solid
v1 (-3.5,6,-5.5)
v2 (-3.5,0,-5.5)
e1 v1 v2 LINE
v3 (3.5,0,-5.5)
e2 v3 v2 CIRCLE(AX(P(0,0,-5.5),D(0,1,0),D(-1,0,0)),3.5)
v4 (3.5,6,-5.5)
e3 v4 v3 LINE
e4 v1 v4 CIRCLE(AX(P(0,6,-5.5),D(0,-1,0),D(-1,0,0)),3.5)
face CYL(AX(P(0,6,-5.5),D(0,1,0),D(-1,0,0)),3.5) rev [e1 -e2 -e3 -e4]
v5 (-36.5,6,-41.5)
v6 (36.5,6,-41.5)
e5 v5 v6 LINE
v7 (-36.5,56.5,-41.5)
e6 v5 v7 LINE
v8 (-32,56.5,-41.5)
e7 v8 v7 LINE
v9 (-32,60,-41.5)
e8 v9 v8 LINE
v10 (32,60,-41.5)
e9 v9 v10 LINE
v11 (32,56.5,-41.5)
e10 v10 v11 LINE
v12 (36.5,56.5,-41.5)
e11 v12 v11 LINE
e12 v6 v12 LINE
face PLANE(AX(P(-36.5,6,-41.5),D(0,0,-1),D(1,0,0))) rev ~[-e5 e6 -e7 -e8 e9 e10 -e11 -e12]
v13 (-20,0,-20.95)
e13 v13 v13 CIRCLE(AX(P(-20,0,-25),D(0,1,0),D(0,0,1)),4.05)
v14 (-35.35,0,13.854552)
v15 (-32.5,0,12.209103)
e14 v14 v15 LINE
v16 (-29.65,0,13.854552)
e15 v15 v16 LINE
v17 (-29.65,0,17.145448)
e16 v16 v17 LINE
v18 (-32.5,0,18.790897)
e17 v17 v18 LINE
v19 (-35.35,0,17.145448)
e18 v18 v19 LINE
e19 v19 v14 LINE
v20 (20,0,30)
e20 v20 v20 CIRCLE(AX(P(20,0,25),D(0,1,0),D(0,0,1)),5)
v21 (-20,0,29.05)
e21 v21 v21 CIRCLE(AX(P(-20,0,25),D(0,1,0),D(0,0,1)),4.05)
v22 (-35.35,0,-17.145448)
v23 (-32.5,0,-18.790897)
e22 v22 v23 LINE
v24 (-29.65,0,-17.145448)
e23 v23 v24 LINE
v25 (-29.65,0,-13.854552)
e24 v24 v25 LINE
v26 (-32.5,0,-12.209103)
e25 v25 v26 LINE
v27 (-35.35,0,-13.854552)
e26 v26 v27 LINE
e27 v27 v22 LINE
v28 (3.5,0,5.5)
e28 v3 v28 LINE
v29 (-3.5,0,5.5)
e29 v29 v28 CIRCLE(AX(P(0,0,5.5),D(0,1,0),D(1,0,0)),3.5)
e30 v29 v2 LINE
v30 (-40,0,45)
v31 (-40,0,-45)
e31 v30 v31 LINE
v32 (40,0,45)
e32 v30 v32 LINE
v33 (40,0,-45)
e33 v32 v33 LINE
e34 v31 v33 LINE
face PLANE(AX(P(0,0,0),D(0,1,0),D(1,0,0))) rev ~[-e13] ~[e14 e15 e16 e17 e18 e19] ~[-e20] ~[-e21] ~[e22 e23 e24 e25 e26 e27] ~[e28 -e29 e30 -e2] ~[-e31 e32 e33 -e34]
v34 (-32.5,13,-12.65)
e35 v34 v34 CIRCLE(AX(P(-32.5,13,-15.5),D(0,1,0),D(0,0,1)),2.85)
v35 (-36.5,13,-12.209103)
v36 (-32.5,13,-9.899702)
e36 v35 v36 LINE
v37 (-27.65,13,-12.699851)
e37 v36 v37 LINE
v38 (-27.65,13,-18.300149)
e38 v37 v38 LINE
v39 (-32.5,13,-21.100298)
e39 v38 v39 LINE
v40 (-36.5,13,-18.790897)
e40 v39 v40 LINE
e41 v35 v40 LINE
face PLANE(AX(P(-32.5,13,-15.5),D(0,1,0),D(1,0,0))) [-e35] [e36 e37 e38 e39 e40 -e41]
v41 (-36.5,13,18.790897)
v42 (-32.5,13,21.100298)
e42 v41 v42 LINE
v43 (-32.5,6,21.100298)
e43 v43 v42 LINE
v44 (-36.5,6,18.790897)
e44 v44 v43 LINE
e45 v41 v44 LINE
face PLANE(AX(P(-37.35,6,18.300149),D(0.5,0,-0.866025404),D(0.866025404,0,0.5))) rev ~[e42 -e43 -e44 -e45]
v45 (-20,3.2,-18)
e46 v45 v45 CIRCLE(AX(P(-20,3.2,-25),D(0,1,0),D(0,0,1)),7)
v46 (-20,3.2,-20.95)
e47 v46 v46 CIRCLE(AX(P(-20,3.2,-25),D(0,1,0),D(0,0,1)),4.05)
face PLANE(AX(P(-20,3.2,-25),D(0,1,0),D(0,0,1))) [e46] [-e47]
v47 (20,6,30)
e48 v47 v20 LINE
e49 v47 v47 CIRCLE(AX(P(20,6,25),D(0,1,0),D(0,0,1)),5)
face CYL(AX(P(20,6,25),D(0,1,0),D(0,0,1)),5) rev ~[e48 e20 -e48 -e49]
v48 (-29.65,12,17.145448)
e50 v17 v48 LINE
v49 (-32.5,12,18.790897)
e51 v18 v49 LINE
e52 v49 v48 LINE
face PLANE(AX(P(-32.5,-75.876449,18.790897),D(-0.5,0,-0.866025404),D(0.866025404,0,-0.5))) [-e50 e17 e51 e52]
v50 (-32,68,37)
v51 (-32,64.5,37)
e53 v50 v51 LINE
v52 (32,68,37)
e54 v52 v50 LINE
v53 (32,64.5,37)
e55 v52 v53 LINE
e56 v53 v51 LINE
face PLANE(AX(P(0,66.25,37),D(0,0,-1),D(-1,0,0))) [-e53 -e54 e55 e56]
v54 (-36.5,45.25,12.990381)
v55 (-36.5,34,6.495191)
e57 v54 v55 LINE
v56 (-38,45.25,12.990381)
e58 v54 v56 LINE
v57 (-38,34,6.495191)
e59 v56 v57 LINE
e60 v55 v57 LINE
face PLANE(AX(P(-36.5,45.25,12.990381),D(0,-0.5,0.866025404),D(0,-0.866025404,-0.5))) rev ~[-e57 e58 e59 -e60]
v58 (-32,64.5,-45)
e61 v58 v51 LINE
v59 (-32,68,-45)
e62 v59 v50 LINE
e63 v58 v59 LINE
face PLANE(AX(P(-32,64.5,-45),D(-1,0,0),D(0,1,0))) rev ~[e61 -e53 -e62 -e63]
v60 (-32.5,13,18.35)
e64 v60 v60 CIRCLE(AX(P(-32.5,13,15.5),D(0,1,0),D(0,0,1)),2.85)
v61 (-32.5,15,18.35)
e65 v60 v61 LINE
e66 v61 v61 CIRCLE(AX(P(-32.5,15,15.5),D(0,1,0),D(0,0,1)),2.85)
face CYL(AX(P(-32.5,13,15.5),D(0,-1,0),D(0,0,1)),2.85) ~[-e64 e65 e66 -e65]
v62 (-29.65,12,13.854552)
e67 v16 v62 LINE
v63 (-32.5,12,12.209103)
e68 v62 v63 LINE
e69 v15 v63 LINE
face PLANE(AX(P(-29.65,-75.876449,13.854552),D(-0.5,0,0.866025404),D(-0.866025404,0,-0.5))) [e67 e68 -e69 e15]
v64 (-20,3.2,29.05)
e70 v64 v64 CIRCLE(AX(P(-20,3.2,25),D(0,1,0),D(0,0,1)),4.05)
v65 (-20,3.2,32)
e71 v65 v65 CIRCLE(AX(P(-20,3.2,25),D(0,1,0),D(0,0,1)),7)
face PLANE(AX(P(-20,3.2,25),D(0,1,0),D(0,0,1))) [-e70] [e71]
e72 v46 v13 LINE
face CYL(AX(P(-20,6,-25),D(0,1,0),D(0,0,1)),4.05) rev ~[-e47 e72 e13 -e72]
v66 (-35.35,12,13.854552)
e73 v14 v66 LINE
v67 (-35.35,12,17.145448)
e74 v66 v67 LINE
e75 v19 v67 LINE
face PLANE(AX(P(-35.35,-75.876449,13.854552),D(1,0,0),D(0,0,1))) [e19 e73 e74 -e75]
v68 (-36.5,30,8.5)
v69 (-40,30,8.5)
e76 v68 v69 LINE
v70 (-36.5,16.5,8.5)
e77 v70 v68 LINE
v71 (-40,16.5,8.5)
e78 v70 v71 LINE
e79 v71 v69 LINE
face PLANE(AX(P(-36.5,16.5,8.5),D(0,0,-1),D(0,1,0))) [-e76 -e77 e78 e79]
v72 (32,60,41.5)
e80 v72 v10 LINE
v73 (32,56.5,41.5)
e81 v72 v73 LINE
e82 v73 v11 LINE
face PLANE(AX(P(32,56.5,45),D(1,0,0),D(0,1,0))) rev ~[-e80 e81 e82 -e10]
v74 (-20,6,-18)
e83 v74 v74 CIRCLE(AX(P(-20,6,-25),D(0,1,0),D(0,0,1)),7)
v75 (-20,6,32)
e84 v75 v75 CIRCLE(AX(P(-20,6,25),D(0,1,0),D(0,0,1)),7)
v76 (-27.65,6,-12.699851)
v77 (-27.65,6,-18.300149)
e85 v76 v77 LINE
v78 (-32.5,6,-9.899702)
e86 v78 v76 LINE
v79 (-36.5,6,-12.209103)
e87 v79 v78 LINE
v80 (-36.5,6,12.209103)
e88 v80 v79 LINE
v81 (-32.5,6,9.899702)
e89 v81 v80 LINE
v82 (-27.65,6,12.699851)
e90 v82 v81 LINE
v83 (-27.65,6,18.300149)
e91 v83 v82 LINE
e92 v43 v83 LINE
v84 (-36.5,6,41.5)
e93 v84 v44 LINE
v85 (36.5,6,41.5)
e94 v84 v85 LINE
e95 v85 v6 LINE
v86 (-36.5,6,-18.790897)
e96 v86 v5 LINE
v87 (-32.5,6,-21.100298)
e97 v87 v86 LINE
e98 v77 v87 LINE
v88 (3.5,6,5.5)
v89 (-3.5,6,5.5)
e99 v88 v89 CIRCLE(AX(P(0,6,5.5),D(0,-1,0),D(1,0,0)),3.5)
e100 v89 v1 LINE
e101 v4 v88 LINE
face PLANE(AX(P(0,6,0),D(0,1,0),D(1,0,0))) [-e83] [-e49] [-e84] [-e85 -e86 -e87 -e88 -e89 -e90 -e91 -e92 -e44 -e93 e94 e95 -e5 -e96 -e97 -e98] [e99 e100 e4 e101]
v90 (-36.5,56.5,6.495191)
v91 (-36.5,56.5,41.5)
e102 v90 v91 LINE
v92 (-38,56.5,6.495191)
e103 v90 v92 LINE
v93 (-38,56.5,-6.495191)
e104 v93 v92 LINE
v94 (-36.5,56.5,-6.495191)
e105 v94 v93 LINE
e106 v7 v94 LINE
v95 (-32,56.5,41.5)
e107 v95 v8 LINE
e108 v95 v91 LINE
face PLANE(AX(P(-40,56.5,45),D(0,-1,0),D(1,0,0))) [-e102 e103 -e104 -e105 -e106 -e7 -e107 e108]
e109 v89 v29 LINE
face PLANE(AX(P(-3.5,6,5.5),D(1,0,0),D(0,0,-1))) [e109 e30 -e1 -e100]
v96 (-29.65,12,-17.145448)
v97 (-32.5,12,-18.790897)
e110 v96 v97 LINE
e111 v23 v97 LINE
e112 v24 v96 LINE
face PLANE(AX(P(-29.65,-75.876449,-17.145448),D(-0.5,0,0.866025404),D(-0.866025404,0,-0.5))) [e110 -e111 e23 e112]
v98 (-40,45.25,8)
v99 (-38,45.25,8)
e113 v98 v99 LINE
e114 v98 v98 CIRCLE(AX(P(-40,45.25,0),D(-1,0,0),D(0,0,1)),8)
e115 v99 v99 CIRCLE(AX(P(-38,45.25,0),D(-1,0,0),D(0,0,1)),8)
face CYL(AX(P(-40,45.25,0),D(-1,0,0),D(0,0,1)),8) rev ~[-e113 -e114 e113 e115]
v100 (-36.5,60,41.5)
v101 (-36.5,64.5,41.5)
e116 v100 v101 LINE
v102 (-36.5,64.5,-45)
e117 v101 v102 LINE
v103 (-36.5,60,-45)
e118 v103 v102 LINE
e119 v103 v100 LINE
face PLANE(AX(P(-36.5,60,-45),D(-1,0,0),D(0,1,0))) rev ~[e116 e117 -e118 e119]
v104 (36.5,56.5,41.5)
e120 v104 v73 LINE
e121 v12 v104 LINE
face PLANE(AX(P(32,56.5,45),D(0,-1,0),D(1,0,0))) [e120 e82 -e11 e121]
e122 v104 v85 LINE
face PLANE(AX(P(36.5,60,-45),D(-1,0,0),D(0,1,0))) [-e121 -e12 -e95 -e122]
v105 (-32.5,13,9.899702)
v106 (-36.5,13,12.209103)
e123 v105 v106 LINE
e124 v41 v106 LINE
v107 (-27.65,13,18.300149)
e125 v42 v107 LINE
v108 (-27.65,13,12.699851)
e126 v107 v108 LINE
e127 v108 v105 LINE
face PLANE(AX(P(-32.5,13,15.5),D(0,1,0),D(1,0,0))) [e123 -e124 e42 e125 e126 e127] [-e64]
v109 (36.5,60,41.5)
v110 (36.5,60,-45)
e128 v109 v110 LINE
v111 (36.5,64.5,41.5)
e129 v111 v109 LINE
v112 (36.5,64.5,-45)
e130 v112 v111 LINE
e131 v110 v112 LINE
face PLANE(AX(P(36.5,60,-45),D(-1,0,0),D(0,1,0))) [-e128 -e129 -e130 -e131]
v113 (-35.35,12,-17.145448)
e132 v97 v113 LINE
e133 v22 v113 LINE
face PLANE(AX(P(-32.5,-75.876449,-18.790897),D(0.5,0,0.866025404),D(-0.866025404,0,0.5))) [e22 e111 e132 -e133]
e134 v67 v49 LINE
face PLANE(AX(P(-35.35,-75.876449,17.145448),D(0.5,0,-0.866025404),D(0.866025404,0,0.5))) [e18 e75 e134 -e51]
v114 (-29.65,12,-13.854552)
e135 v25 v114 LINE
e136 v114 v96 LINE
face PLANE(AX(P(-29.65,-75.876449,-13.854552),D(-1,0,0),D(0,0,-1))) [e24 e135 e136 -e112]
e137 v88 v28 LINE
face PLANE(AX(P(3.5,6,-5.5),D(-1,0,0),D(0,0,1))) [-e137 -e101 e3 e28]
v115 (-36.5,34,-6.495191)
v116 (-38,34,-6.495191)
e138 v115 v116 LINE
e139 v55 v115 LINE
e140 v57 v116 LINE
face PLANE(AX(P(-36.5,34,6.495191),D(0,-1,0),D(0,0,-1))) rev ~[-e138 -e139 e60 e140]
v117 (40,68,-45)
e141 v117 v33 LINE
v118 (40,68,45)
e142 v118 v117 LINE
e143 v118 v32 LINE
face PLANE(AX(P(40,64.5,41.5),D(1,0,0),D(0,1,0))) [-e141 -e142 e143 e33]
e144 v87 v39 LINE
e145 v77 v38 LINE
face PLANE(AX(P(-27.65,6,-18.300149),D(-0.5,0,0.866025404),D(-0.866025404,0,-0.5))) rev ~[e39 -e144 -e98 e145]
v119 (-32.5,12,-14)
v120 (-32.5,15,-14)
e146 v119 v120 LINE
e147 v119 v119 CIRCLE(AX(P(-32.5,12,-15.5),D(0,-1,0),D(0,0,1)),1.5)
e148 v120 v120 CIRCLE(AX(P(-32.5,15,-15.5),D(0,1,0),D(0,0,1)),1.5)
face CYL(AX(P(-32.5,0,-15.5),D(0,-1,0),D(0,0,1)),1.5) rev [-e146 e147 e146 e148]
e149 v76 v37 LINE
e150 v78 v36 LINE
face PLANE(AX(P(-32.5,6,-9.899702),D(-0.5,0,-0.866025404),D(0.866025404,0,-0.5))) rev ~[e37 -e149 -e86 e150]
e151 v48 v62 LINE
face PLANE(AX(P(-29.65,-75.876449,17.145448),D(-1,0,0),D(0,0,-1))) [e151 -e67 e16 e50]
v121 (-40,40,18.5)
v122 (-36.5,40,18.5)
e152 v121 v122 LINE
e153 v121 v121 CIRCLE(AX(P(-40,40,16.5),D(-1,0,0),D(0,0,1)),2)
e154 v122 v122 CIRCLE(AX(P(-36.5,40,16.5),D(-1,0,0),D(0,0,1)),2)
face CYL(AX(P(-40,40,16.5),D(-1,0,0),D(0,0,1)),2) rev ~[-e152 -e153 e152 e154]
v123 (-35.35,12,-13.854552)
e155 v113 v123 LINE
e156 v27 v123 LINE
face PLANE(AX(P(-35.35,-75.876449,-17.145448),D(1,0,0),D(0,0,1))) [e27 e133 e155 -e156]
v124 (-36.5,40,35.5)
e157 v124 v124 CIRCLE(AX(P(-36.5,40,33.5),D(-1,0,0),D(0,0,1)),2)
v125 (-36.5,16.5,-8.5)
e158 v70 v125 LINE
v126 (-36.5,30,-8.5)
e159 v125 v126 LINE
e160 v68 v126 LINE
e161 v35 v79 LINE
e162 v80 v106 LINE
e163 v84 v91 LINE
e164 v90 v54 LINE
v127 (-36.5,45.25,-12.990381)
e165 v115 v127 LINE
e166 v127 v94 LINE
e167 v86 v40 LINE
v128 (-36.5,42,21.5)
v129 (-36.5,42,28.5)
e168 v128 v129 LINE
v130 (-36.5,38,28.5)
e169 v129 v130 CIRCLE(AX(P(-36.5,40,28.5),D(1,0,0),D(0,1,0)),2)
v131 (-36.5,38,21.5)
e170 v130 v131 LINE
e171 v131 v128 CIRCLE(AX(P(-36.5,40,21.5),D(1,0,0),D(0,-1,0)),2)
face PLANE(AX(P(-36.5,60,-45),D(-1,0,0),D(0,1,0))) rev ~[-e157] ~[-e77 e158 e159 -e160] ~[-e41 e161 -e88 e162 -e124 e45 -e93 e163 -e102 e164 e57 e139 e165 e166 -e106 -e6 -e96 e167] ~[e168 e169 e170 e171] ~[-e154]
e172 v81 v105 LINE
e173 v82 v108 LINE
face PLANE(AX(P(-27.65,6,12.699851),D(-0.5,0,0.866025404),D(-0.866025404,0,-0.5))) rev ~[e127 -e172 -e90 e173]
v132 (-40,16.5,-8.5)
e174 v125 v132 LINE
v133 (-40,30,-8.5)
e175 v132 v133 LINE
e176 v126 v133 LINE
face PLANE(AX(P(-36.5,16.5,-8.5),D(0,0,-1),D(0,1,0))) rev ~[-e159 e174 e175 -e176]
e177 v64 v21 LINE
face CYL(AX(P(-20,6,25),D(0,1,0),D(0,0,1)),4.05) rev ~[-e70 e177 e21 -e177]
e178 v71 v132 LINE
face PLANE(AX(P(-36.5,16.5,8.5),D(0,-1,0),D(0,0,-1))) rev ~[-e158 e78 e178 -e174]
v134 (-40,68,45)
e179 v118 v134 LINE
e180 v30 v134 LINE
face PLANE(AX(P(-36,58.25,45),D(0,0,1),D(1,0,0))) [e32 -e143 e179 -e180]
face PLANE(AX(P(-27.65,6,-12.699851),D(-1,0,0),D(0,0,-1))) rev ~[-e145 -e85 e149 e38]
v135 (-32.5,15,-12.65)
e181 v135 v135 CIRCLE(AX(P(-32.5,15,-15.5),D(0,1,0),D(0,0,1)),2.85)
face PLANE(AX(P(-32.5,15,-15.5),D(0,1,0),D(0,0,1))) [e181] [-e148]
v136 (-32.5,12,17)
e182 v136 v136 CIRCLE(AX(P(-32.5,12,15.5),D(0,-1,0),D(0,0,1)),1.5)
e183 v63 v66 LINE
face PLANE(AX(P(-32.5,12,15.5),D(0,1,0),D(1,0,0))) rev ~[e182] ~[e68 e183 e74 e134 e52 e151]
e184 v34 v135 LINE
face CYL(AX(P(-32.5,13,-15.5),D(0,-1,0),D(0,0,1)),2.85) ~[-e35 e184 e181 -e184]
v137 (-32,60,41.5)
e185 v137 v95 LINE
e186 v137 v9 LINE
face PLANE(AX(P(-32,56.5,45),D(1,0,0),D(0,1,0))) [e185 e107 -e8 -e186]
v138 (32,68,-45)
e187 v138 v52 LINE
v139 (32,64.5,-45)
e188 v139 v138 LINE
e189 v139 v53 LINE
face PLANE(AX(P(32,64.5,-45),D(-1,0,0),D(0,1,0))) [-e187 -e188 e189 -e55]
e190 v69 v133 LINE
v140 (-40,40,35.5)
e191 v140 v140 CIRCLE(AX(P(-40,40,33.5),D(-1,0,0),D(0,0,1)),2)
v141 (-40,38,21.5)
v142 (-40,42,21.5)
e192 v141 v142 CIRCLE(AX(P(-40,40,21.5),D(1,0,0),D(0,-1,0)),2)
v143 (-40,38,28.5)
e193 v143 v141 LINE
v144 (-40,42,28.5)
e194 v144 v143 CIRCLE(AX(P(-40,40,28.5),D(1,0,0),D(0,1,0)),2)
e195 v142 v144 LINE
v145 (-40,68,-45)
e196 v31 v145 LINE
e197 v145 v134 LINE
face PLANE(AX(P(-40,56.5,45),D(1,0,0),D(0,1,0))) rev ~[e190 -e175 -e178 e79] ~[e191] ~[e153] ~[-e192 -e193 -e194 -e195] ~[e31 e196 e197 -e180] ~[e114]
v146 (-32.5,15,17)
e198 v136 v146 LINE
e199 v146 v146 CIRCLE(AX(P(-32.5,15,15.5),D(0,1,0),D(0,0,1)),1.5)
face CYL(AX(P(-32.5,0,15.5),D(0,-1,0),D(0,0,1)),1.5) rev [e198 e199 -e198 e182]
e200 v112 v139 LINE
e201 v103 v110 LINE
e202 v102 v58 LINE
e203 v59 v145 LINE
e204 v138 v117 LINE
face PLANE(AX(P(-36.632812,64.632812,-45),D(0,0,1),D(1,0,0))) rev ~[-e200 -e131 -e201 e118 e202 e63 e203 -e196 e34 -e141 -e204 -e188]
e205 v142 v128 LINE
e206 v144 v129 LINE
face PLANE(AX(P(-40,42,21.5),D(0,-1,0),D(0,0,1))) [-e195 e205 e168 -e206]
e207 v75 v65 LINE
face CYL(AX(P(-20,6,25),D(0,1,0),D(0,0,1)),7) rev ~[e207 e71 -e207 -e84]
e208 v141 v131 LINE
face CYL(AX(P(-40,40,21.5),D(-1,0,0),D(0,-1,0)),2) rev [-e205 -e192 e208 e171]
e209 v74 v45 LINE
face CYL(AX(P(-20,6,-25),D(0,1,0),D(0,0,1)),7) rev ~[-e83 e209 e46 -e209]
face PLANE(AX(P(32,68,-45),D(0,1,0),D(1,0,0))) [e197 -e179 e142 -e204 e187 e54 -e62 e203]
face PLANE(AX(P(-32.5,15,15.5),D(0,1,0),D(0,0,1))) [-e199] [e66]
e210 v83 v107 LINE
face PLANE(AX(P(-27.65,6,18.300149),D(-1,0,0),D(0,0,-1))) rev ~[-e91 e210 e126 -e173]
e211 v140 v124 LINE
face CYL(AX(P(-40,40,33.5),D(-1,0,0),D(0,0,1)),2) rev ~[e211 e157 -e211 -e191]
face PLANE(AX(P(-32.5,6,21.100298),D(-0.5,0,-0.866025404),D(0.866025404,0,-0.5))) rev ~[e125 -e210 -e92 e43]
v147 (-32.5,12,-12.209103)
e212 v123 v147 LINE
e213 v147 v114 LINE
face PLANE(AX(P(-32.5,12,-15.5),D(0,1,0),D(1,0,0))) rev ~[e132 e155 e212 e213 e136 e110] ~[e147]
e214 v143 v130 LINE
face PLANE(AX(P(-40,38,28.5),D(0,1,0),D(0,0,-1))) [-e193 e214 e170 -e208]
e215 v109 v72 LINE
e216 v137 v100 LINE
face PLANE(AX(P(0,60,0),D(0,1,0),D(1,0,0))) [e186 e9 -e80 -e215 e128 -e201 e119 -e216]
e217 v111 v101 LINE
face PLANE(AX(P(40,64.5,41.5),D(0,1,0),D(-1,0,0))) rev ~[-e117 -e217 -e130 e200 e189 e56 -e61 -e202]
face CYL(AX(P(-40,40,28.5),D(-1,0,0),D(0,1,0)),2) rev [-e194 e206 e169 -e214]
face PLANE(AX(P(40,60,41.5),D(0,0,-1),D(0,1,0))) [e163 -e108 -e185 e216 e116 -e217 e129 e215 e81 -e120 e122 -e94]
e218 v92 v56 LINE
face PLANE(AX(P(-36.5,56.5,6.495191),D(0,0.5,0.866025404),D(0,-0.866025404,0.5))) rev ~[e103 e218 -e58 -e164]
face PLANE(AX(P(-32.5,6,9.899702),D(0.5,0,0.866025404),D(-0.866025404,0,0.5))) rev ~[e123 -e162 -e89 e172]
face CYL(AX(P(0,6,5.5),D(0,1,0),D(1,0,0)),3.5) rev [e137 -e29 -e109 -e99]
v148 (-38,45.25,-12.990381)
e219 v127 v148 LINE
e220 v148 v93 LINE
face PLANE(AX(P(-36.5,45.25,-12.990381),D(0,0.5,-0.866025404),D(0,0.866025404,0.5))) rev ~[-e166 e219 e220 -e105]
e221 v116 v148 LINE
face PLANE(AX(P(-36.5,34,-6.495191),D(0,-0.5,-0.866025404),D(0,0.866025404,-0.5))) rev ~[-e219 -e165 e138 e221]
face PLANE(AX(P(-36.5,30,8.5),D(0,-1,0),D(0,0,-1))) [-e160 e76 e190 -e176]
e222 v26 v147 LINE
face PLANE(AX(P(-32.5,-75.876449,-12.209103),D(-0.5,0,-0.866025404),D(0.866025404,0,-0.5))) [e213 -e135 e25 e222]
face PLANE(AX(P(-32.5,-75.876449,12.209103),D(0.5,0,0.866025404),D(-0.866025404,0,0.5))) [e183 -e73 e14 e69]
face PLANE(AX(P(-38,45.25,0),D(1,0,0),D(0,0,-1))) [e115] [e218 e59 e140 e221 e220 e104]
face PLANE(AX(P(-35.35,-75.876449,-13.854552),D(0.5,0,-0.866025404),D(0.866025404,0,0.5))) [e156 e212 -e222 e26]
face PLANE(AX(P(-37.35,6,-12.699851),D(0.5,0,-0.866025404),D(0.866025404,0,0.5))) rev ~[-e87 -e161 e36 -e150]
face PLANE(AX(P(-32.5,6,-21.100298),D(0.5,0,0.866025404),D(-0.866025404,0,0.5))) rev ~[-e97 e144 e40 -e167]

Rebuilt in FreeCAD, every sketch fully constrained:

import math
import FreeCAD as App
import Part
import Sketcher
from FreeCAD import Vector
Q = App.Units.Quantity


def add_polygon(sketch, points):
    """Adds a closed chain of lines whose ends are joined by coincident constraints."""
    first, n = sketch.GeometryCount, len(points)
    for a, b in zip(points, points[1:] + points[:1]):
        sketch.addGeometry(Part.LineSegment(App.Vector(*a, 0), App.Vector(*b, 0)), False)
    for i in range(n):
        sketch.addConstraint(Sketcher.Constraint("Coincident", first + i, 2, first + (i + 1) % n, 1))

doc = App.newDocument("Part")
body = doc.addObject("PartDesign::Body", "Body")

sketch1 = body.newObject("Sketcher::SketchObject", "Sketch")
sketch1.AttachmentSupport = (doc.getObject("XZ_Plane"), [""])
sketch1.MapMode = "FlatFace"
add_polygon(sketch1, [(-40, -45), (-40, 45), (40, 45), (40, -45)])
sketch1.addConstraint(Sketcher.Constraint("Vertical", 0))
sketch1.addConstraint(Sketcher.Constraint("Horizontal", 1))
sketch1.addConstraint(Sketcher.Constraint("Vertical", 2))
sketch1.addConstraint(Sketcher.Constraint("Horizontal", 3))
sketch1.addConstraint(Sketcher.Constraint("Symmetric", 0, 2, 2, 2, -1, 1))
sketch1.addConstraint(Sketcher.Constraint("DistanceX", 1, 1, 1, 2, Q("80 mm")))
sketch1.addConstraint(Sketcher.Constraint("DistanceY", 0, 1, 0, 2, Q("90 mm")))
pad1 = body.newObject("PartDesign::Pad", "Pad")
pad1.Profile = sketch1
pad1.Length = 6
pad1.Reversed = True

sketch2 = body.newObject("Sketcher::SketchObject", "Sketch001")
sketch2.AttachmentSupport = (doc.getObject("XZ_Plane"), [""])
sketch2.MapMode = "FlatFace"
sketch2.AttachmentOffset = App.Placement(Vector(0, 0, -6), App.Rotation())
add_polygon(sketch2, [(-40, -45), (-40, 45), (40, 45), (40, -45)])
add_polygon(sketch2, [(36, 42), (-36, 42), (-36, -42), (36, -42)])
sketch2.addConstraint(Sketcher.Constraint("Vertical", 0))
sketch2.addConstraint(Sketcher.Constraint("Horizontal", 1))
sketch2.addConstraint(Sketcher.Constraint("Vertical", 2))
sketch2.addConstraint(Sketcher.Constraint("Horizontal", 3))
sketch2.addConstraint(Sketcher.Constraint("Horizontal", 4))
sketch2.addConstraint(Sketcher.Constraint("Vertical", 5))
sketch2.addConstraint(Sketcher.Constraint("Horizontal", 6))
sketch2.addConstraint(Sketcher.Constraint("Vertical", 7))
sketch2.addConstraint(Sketcher.Constraint("Symmetric", 0, 2, 2, 2, -1, 1))
sketch2.addConstraint(Sketcher.Constraint("Symmetric", 4, 2, 6, 2, -1, 1))
sketch2.addConstraint(Sketcher.Constraint("DistanceX", 1, 1, 1, 2, Q("80 mm")))
sketch2.addConstraint(Sketcher.Constraint("DistanceX", 4, 2, 4, 1, Q("73 mm")))
sketch2.addConstraint(Sketcher.Constraint("DistanceY", 0, 1, 0, 2, Q("90 mm")))
sketch2.addConstraint(Sketcher.Constraint("DistanceY", 5, 2, 5, 1, Q("83 mm")))
pad2 = body.newObject("PartDesign::Pad", "Pad001")
pad2.Profile = sketch2
pad2.Length = 54
pad2.Reversed = True

sketch3 = body.newObject("Sketcher::SketchObject", "Sketch002")
sketch3.AttachmentSupport = (doc.getObject("XZ_Plane"), [""])
sketch3.MapMode = "FlatFace"
sketch3.AttachmentOffset = App.Placement(Vector(0, 0, -6), App.Rotation())
sketch3.addGeometry(Part.Circle(Vector(-20, -25, 0), Vector(0, 0, 1), 4), False)
sketch3.addGeometry(Part.Circle(Vector(-20, 25, 0), Vector(0, 0, 1), 4), False)
sketch3.addGeometry(Part.Circle(Vector(20, 25, 0), Vector(0, 0, 1), 5), False)
sketch3.addConstraint(Sketcher.Constraint("Equal", 0, 1))
sketch3.addConstraint(Sketcher.Constraint("Symmetric", 0, 3, 2, 3, -1, 1))
sketch3.addConstraint(Sketcher.Constraint("Symmetric", 1, 3, 2, 3, -2))
sketch3.addConstraint(Sketcher.Constraint("Diameter", 2, Q("10 mm")))
sketch3.addConstraint(Sketcher.Constraint("Diameter", 0, Q("8.1 mm")))
sketch3.addConstraint(Sketcher.Constraint("DistanceX", 0, 3, -1, 1, Q("20 mm")))
sketch3.addConstraint(Sketcher.Constraint("DistanceY", 0, 3, -1, 1, Q("25 mm")))
pocket1 = body.newObject("PartDesign::Pocket", "Pocket")
pocket1.Profile = sketch3
pocket1.Length = 40
pocket1.Reversed = True

sketch4 = body.newObject("Sketcher::SketchObject", "Sketch003")
sketch4.AttachmentSupport = (doc.getObject("XZ_Plane"), [""])
sketch4.MapMode = "FlatFace"
sketch4.AttachmentOffset = App.Placement(Vector(0, 0, -6), App.Rotation())
sketch4.addGeometry(Part.Circle(Vector(-20, -25, 0), Vector(0, 0, 1), 7), False)
sketch4.addGeometry(Part.Circle(Vector(-20, 25, 0), Vector(0, 0, 1), 7), False)
sketch4.addConstraint(Sketcher.Constraint("Equal", 0, 1))
sketch4.addConstraint(Sketcher.Constraint("Symmetric", 0, 3, 1, 3, -1))
sketch4.addConstraint(Sketcher.Constraint("Diameter", 0, Q("14 mm")))
sketch4.addConstraint(Sketcher.Constraint("DistanceX", 0, 3, -1, 1, Q("20 mm")))
sketch4.addConstraint(Sketcher.Constraint("DistanceY", 0, 3, -1, 1, Q("25 mm")))
pocket2 = body.newObject("PartDesign::Pocket", "Pocket001")
pocket2.Profile = sketch4
pocket2.Length = 2.8
pocket2.Reversed = True

sketch5 = body.newObject("Sketcher::SketchObject", "Sketch004")
sketch5.AttachmentSupport = (doc.getObject("XZ_Plane"), [""])
sketch5.MapMode = "FlatFace"
sketch5.AttachmentOffset = App.Placement(Vector(0, 0, -6), App.Rotation())
add_polygon(sketch5, [(-32, -21), (-37, -18), (-37, -13), (-32, -10), (-28, -13), (-28, -18)])
add_polygon(sketch5, [(-28, 13), (-32, 10), (-37, 13), (-37, 18), (-32, 21), (-28, 18)])
sketch5.addConstraint(Sketcher.Constraint("Vertical", 1))
sketch5.addConstraint(Sketcher.Constraint("Vertical", 4))
sketch5.addConstraint(Sketcher.Constraint("Vertical", 8))
sketch5.addConstraint(Sketcher.Constraint("Vertical", 11))
sketch5.addConstraint(Sketcher.Constraint("Symmetric", 2, 2, 6, 2, -1))
sketch5.addConstraint(Sketcher.Constraint("Symmetric", 1, 2, 7, 2, -1))
sketch5.addConstraint(Sketcher.Constraint("Symmetric", 5, 2, 9, 2, -1))
sketch5.addConstraint(Sketcher.Constraint("Symmetric", 4, 2, 10, 2, -1))
sketch5.addConstraint(Sketcher.Constraint("Parallel", 0, 3))
sketch5.addConstraint(Sketcher.Constraint("Parallel", 2, 5))
sketch5.addConstraint(Sketcher.Constraint("Parallel", 5, 6))
sketch5.addConstraint(Sketcher.Constraint("Parallel", 3, 7))
sketch5.addConstraint(Sketcher.Constraint("Parallel", 6, 9))
sketch5.addConstraint(Sketcher.Constraint("Horizontal", 1, 2, 3, 2))
sketch5.addConstraint(Sketcher.Constraint("Horizontal", 0, 2, 4, 2))
sketch5.addConstraint(Sketcher.Constraint("Angle", 0, Q("150 deg")))
sketch5.addConstraint(Sketcher.Constraint("DistanceY", 0, 2, 7, 2, Q("31 mm")))
sketch5.addConstraint(Sketcher.Constraint("DistanceX", 2, 2, -1, 1, Q("32.5 mm")))
sketch5.addConstraint(Sketcher.Constraint("DistanceX", 1, 2, 3, 2, Q("9.7 mm")))
sketch5.addConstraint(Sketcher.Constraint("DistanceY", 1, 1, 1, 2, Q("5.600298 mm")))
pad3 = body.newObject("PartDesign::Pad", "Pad002")
pad3.Profile = sketch5
pad3.Length = 7
pad3.Reversed = True

sketch6 = body.newObject("Sketcher::SketchObject", "Sketch005")
sketch6.AttachmentSupport = (doc.getObject("XZ_Plane"), [""])
sketch6.MapMode = "FlatFace"
sketch6.AttachmentOffset = App.Placement(Vector(0, 0, -13), App.Rotation())
sketch6.addGeometry(Part.Circle(Vector(-32.5, -15.5, 0), Vector(0, 0, 1), 2.9), False)
sketch6.addGeometry(Part.Circle(Vector(-32.5, 15.5, 0), Vector(0, 0, 1), 2.9), False)
sketch6.addConstraint(Sketcher.Constraint("Equal", 0, 1))
sketch6.addConstraint(Sketcher.Constraint("Symmetric", 0, 3, 1, 3, -1))
sketch6.addConstraint(Sketcher.Constraint("Diameter", 0, Q("5.7 mm")))
sketch6.addConstraint(Sketcher.Constraint("DistanceY", 0, 3, 1, 3, Q("31 mm")))
sketch6.addConstraint(Sketcher.Constraint("DistanceX", 0, 3, -1, 1, Q("32.5 mm")))
pad4 = body.newObject("PartDesign::Pad", "Pad003")
pad4.Profile = sketch6
pad4.Length = 2
pad4.Reversed = True

sketch7 = body.newObject("Sketcher::SketchObject", "Sketch006")
sketch7.AttachmentSupport = (doc.getObject("XZ_Plane"), [""])
sketch7.MapMode = "FlatFace"
sketch7.AttachmentOffset = App.Placement(Vector(0, 0, -6), App.Rotation())
sketch7.addGeometry(Part.Circle(Vector(-32.5, -15.5, 0), Vector(0, 0, 1), 1.5), False)
sketch7.addGeometry(Part.Circle(Vector(-32.5, 15.5, 0), Vector(0, 0, 1), 1.5), False)
sketch7.addConstraint(Sketcher.Constraint("Equal", 0, 1))
sketch7.addConstraint(Sketcher.Constraint("Symmetric", 0, 3, 1, 3, -1))
sketch7.addConstraint(Sketcher.Constraint("Diameter", 0, Q("3 mm")))
sketch7.addConstraint(Sketcher.Constraint("DistanceY", 0, 3, 1, 3, Q("31 mm")))
sketch7.addConstraint(Sketcher.Constraint("DistanceX", 0, 3, -1, 1, Q("32.5 mm")))
pocket3 = body.newObject("PartDesign::Pocket", "Pocket002")
pocket3.Profile = sketch7
pocket3.Type = "ThroughAll"
pocket3.Midplane = True

sketch8 = body.newObject("Sketcher::SketchObject", "Sketch007")
sketch8.AttachmentSupport = (doc.getObject("XZ_Plane"), [""])
sketch8.MapMode = "FlatFace"
sketch8.AttachmentOffset = App.Placement(Vector(0, 0, -6), App.Rotation())
add_polygon(sketch8, [(-29.6, -17.1), (-32.5, -18.8), (-35.4, -17.1), (-35.4, -13.9), (-32.5, -12.2), (-29.6, -13.9)])
add_polygon(sketch8, [(-29.6, 13.9), (-32.5, 12.2), (-35.4, 13.9), (-35.4, 17.1), (-32.5, 18.8), (-29.6, 17.1)])
sketch8.addConstraint(Sketcher.Constraint("Vertical", 2))
sketch8.addConstraint(Sketcher.Constraint("Vertical", 5))
sketch8.addConstraint(Sketcher.Constraint("Vertical", 8))
sketch8.addConstraint(Sketcher.Constraint("Vertical", 11))
sketch8.addConstraint(Sketcher.Constraint("Symmetric", 3, 2, 6, 2, -1))
sketch8.addConstraint(Sketcher.Constraint("Symmetric", 2, 2, 7, 2, -1))
sketch8.addConstraint(Sketcher.Constraint("Symmetric", 0, 2, 9, 2, -1))
sketch8.addConstraint(Sketcher.Constraint("Symmetric", 5, 2, 10, 2, -1))
sketch8.addConstraint(Sketcher.Constraint("Parallel", 0, 3))
sketch8.addConstraint(Sketcher.Constraint("Parallel", 1, 4))
sketch8.addConstraint(Sketcher.Constraint("Parallel", 3, 6))
sketch8.addConstraint(Sketcher.Constraint("Parallel", 4, 7))
sketch8.addConstraint(Sketcher.Constraint("Parallel", 6, 9))
sketch8.addConstraint(Sketcher.Constraint("Horizontal", 2, 2, 4, 2))
sketch8.addConstraint(Sketcher.Constraint("Horizontal", 1, 2, 5, 2))
sketch8.addConstraint(Sketcher.Constraint("Angle", 0, Q("-150 deg")))
sketch8.addConstraint(Sketcher.Constraint("DistanceY", 1, 2, 7, 2, Q("31 mm")))
sketch8.addConstraint(Sketcher.Constraint("DistanceX", 0, 2, -1, 1, Q("32.5 mm")))
sketch8.addConstraint(Sketcher.Constraint("DistanceX", 2, 2, 4, 2, Q("5.7 mm")))
sketch8.addConstraint(Sketcher.Constraint("DistanceY", 2, 1, 2, 2, Q("3.290897 mm")))
pocket4 = body.newObject("PartDesign::Pocket", "Pocket003")
pocket4.Profile = sketch8
pocket4.Type = "TwoLengths"
pocket4.Length = 6
pocket4.Length2 = 81.876449

sketch9 = body.newObject("Sketcher::SketchObject", "Sketch008")
sketch9.AttachmentSupport = (doc.getObject("YZ_Plane"), [""])
sketch9.MapMode = "FlatFace"
sketch9.AttachmentOffset = App.Placement(Vector(0, 0, -36.5), App.Rotation())
add_polygon(sketch9, [(30, 8), (16, 8), (16, -8), (30, -8)])
sketch9.addConstraint(Sketcher.Constraint("Horizontal", 0))
sketch9.addConstraint(Sketcher.Constraint("Vertical", 1))
sketch9.addConstraint(Sketcher.Constraint("Horizontal", 2))
sketch9.addConstraint(Sketcher.Constraint("Vertical", 3))
sketch9.addConstraint(Sketcher.Constraint("DistanceY", 1, 2, 1, 1, Q("17 mm")))
sketch9.addConstraint(Sketcher.Constraint("DistanceX", 0, 2, 0, 1, Q("13.5 mm")))
sketch9.addConstraint(Sketcher.Constraint("DistanceX", -1, 1, 2, 2, Q("30 mm")))
sketch9.addConstraint(Sketcher.Constraint("DistanceY", -1, 1, 0, 2, Q("8.5 mm")))
pocket5 = body.newObject("PartDesign::Pocket", "Pocket004")
pocket5.Profile = sketch9
pocket5.Length = 3.5

sketch10 = body.newObject("Sketcher::SketchObject", "Sketch009")
sketch10.AttachmentSupport = (doc.getObject("YZ_Plane"), [""])
sketch10.MapMode = "FlatFace"
sketch10.AttachmentOffset = App.Placement(Vector(0, 0, -40), App.Rotation())
sketch10.addGeometry(Part.Circle(Vector(45, 0, 0), Vector(0, 0, 1), 8), False)
sketch10.addConstraint(Sketcher.Constraint("PointOnObject", 0, 3, -1))
sketch10.addConstraint(Sketcher.Constraint("Diameter", 0, Q("16 mm")))
sketch10.addConstraint(Sketcher.Constraint("DistanceX", -1, 1, 0, 3, Q("45.25 mm")))
pocket6 = body.newObject("PartDesign::Pocket", "Pocket005")
pocket6.Profile = sketch10
pocket6.Length = 2
pocket6.Reversed = True

sketch11 = body.newObject("Sketcher::SketchObject", "Sketch010")
sketch11.AttachmentSupport = (doc.getObject("YZ_Plane"), [""])
sketch11.MapMode = "FlatFace"
sketch11.AttachmentOffset = App.Placement(Vector(0, 0, -36.5), App.Rotation())
add_polygon(sketch11, [(56, 6), (45, 13), (34, 6), (34, -6), (45, -13), (56, -6)])
sketch11.addConstraint(Sketcher.Constraint("Vertical", 2))
sketch11.addConstraint(Sketcher.Constraint("Vertical", 5))
sketch11.addConstraint(Sketcher.Constraint("Symmetric", 0, 2, 3, 2, -1))
sketch11.addConstraint(Sketcher.Constraint("Parallel", 0, 3))
sketch11.addConstraint(Sketcher.Constraint("Parallel", 1, 4))
sketch11.addConstraint(Sketcher.Constraint("Horizontal", 2, 2, 4, 2))
sketch11.addConstraint(Sketcher.Constraint("Horizontal", 1, 2, 5, 2))
sketch11.addConstraint(Sketcher.Constraint("Angle", 0, Q("150 deg")))
sketch11.addConstraint(Sketcher.Constraint("DistanceX", -1, 1, 1, 2, Q("34 mm")))
sketch11.addConstraint(Sketcher.Constraint("DistanceX", -1, 1, 4, 2, Q("56.5 mm")))
sketch11.addConstraint(Sketcher.Constraint("DistanceY", 2, 2, 2, 1, Q("12.990381 mm")))
pocket7 = body.newObject("PartDesign::Pocket", "Pocket006")
pocket7.Profile = sketch11
pocket7.Length = 1.5

sketch12 = body.newObject("Sketcher::SketchObject", "Sketch011")
sketch12.AttachmentSupport = (doc.getObject("XZ_Plane"), [""])
sketch12.MapMode = "FlatFace"
sketch12.AttachmentOffset = App.Placement(Vector(0, 0, -6), App.Rotation())
sketch12.addGeometry(Part.LineSegment(Vector(-3.5, -5.5, 0), Vector(-3.5, 5.5, 0)), False)
sketch12.addGeometry(Part.ArcOfCircle(Part.Circle(Vector(0, 5.5, 0), Vector(0, 0, 1), 3.5), math.radians(0), math.radians(180)), False)
sketch12.addGeometry(Part.LineSegment(Vector(3.5, 5.5, 0), Vector(3.5, -5.5, 0)), False)
sketch12.addGeometry(Part.ArcOfCircle(Part.Circle(Vector(0, -5.5, 0), Vector(0, 0, 1), 3.5), math.radians(180), math.radians(360)), False)
sketch12.addConstraint(Sketcher.Constraint("Tangent", 0, 2, 1, 2))
sketch12.addConstraint(Sketcher.Constraint("Tangent", 1, 1, 2, 1))
sketch12.addConstraint(Sketcher.Constraint("Tangent", 2, 2, 3, 2))
sketch12.addConstraint(Sketcher.Constraint("Tangent", 3, 1, 0, 1))
sketch12.addConstraint(Sketcher.Constraint("Vertical", 0))
sketch12.addConstraint(Sketcher.Constraint("Vertical", 2))
sketch12.addConstraint(Sketcher.Constraint("Symmetric", 1, 3, 3, 3, -1, 1))
sketch12.addConstraint(Sketcher.Constraint("Radius", 1, Q("3.5 mm")))
sketch12.addConstraint(Sketcher.Constraint("DistanceY", 0, 1, 0, 2, Q("11 mm")))
pocket8 = body.newObject("PartDesign::Pocket", "Pocket007")
pocket8.Profile = sketch12
pocket8.Length = 10
pocket8.Reversed = True
body2 = doc.addObject("PartDesign::Body", "Body001")

sketch13 = body2.newObject("Sketcher::SketchObject", "Sketch012")
sketch13.AttachmentSupport = (doc.getObject("XY_Plane001"), [""])
sketch13.MapMode = "FlatFace"
sketch13.AttachmentOffset = App.Placement(Vector(0, 0, -45), App.Rotation())
add_polygon(sketch13, [(40, 60), (36.5, 60), (36.5, 64.5), (32, 64.5), (32, 68), (40, 68)])
sketch13.addConstraint(Sketcher.Constraint("Horizontal", 0))
sketch13.addConstraint(Sketcher.Constraint("Vertical", 1))
sketch13.addConstraint(Sketcher.Constraint("Horizontal", 2))
sketch13.addConstraint(Sketcher.Constraint("Vertical", 3))
sketch13.addConstraint(Sketcher.Constraint("Horizontal", 4))
sketch13.addConstraint(Sketcher.Constraint("Vertical", 5))
sketch13.addConstraint(Sketcher.Constraint("Equal", 2, 1))
sketch13.addConstraint(Sketcher.Constraint("Equal", 0, 3))
sketch13.addConstraint(Sketcher.Constraint("DistanceX", 4, 1, 4, 2, Q("8 mm")))
sketch13.addConstraint(Sketcher.Constraint("DistanceX", 0, 2, 0, 1, Q("3.5 mm")))
sketch13.addConstraint(Sketcher.Constraint("DistanceY", -1, 1, 0, 2, Q("60 mm")))
sketch13.addConstraint(Sketcher.Constraint("DistanceX", -1, 1, 2, 2, Q("32 mm")))
pad5 = body2.newObject("PartDesign::Pad", "Pad004")
pad5.Profile = sketch13
pad5.Length = 90
body3 = doc.addObject("PartDesign::Body", "Body002")

sketch14 = body3.newObject("Sketcher::SketchObject", "Sketch013")
sketch14.AttachmentSupport = (doc.getObject("XY_Plane002"), [""])
sketch14.MapMode = "FlatFace"
sketch14.AttachmentOffset = App.Placement(Vector(0, 0, -45), App.Rotation())
add_polygon(sketch14, [(-36.5, 60), (-40, 60), (-40, 68), (-32, 68), (-32, 64.5), (-36.5, 64.5)])
sketch14.addConstraint(Sketcher.Constraint("Horizontal", 0))
sketch14.addConstraint(Sketcher.Constraint("Vertical", 1))
sketch14.addConstraint(Sketcher.Constraint("Horizontal", 2))
sketch14.addConstraint(Sketcher.Constraint("Vertical", 3))
sketch14.addConstraint(Sketcher.Constraint("Horizontal", 4))
sketch14.addConstraint(Sketcher.Constraint("Vertical", 5))
sketch14.addConstraint(Sketcher.Constraint("Equal", 2, 1))
sketch14.addConstraint(Sketcher.Constraint("Equal", 0, 3))
sketch14.addConstraint(Sketcher.Constraint("DistanceX", 2, 1, 2, 2, Q("8 mm")))
sketch14.addConstraint(Sketcher.Constraint("DistanceX", 0, 2, 0, 1, Q("3.5 mm")))
sketch14.addConstraint(Sketcher.Constraint("DistanceX", 0, 2, -1, 1, Q("40 mm")))
sketch14.addConstraint(Sketcher.Constraint("DistanceY", -1, 1, 0, 2, Q("60 mm")))
pad6 = body3.newObject("PartDesign::Pad", "Pad005")
pad6.Profile = sketch14
pad6.Length = 90
doc.recompute()

boolean = body.newObject("PartDesign::Boolean", "Boolean")
boolean.Type = "Fuse"
boolean.addObjects([body2])

sketch15 = body.newObject("Sketcher::SketchObject", "Sketch014")
sketch15.AttachmentSupport = (doc.getObject("YZ_Plane"), [""])
sketch15.MapMode = "FlatFace"
sketch15.AttachmentOffset = App.Placement(Vector(0, 0, 40), App.Rotation())
add_polygon(sketch15, [(68, 45), (60, 45), (60, 41.5), (68, 41.5)])
sketch15.addConstraint(Sketcher.Constraint("Horizontal", 0))
sketch15.addConstraint(Sketcher.Constraint("Vertical", 1))
sketch15.addConstraint(Sketcher.Constraint("Horizontal", 2))
sketch15.addConstraint(Sketcher.Constraint("Vertical", 3))
sketch15.addConstraint(Sketcher.Constraint("DistanceX", 0, 2, 0, 1, Q("8 mm")))
sketch15.addConstraint(Sketcher.Constraint("DistanceY", 1, 2, 1, 1, Q("3.5 mm")))
sketch15.addConstraint(Sketcher.Constraint("DistanceX", -1, 1, 0, 2, Q("60 mm")))
sketch15.addConstraint(Sketcher.Constraint("DistanceY", -1, 1, 0, 2, Q("45 mm")))
pad7 = body.newObject("PartDesign::Pad", "Pad006")
pad7.Profile = sketch15
pad7.Length = 80
pad7.Reversed = True
doc.recompute()

boolean2 = body.newObject("PartDesign::Boolean", "Boolean001")
boolean2.Type = "Fuse"
boolean2.addObjects([body3])

sketch16 = body.newObject("Sketcher::SketchObject", "Sketch015")
sketch16.AttachmentSupport = (doc.getObject("XY_Plane"), [""])
sketch16.MapMode = "FlatFace"
sketch16.AttachmentOffset = App.Placement(Vector(0, 0, 41.5), App.Rotation())
add_polygon(sketch16, [(40, 68), (40, 64.5), (-40, 64.5), (-40, 68)])
sketch16.addConstraint(Sketcher.Constraint("Vertical", 0))
sketch16.addConstraint(Sketcher.Constraint("Horizontal", 1))
sketch16.addConstraint(Sketcher.Constraint("Vertical", 2))
sketch16.addConstraint(Sketcher.Constraint("Horizontal", 3))
sketch16.addConstraint(Sketcher.Constraint("DistanceX", 1, 2, 1, 1, Q("80 mm")))
sketch16.addConstraint(Sketcher.Constraint("DistanceY", 0, 2, 0, 1, Q("3.5 mm")))
sketch16.addConstraint(Sketcher.Constraint("DistanceX", -1, 1, 0, 2, Q("40 mm")))
sketch16.addConstraint(Sketcher.Constraint("DistanceY", -1, 1, 2, 2, Q("68 mm")))
pad8 = body.newObject("PartDesign::Pad", "Pad007")
pad8.Profile = sketch16
pad8.Length = 4.5
pad8.Reversed = True

sketch17 = body.newObject("Sketcher::SketchObject", "Sketch016")
sketch17.AttachmentSupport = (doc.getObject("XY_Plane"), [""])
sketch17.MapMode = "FlatFace"
sketch17.AttachmentOffset = App.Placement(Vector(0, 0, 45), App.Rotation())
add_polygon(sketch17, [(-40, 60), (-40, 56.5), (-32, 56.5), (-32, 60)])
add_polygon(sketch17, [(32, 60), (32, 56.5), (40, 56.5), (40, 60)])
sketch17.addConstraint(Sketcher.Constraint("Vertical", 0))
sketch17.addConstraint(Sketcher.Constraint("Horizontal", 1))
sketch17.addConstraint(Sketcher.Constraint("Vertical", 2))
sketch17.addConstraint(Sketcher.Constraint("Horizontal", 3))
sketch17.addConstraint(Sketcher.Constraint("Vertical", 4))
sketch17.addConstraint(Sketcher.Constraint("Horizontal", 5))
sketch17.addConstraint(Sketcher.Constraint("Vertical", 6))
sketch17.addConstraint(Sketcher.Constraint("Horizontal", 7))
sketch17.addConstraint(Sketcher.Constraint("Symmetric", 1, 2, 4, 2, -2))
sketch17.addConstraint(Sketcher.Constraint("Symmetric", 3, 2, 6, 2, -2))
sketch17.addConstraint(Sketcher.Constraint("DistanceX", 1, 1, 1, 2, Q("8 mm")))
sketch17.addConstraint(Sketcher.Constraint("DistanceY", 0, 2, 0, 1, Q("3.5 mm")))
sketch17.addConstraint(Sketcher.Constraint("DistanceX", 0, 2, -1, 1, Q("40 mm")))
sketch17.addConstraint(Sketcher.Constraint("DistanceY", -1, 1, 2, 2, Q("60 mm")))
pad9 = body.newObject("PartDesign::Pad", "Pad008")
pad9.Profile = sketch17
pad9.Length = 90
pad9.Reversed = True

sketch18 = body.newObject("Sketcher::SketchObject", "Sketch017")
sketch18.AttachmentSupport = (doc.getObject("YZ_Plane"), [""])
sketch18.MapMode = "FlatFace"
sketch18.AttachmentOffset = App.Placement(Vector(0, 0, -40), App.Rotation())
sketch18.addGeometry(Part.Circle(Vector(40, 16.5, 0), Vector(0, 0, 1), 2), False)
sketch18.addGeometry(Part.Circle(Vector(40, 33.5, 0), Vector(0, 0, 1), 2), False)
sketch18.addGeometry(Part.LineSegment(Vector(42, 28.5, 0), Vector(42, 21.5, 0)), False)
sketch18.addGeometry(Part.ArcOfCircle(Part.Circle(Vector(40, 21.5, 0), Vector(0, 0, 1), 2), math.radians(180), math.radians(360)), False)
sketch18.addGeometry(Part.LineSegment(Vector(38, 21.5, 0), Vector(38, 28.5, 0)), False)
sketch18.addGeometry(Part.ArcOfCircle(Part.Circle(Vector(40, 28.5, 0), Vector(0, 0, 1), 2), math.radians(0), math.radians(180)), False)
sketch18.addConstraint(Sketcher.Constraint("Tangent", 2, 2, 3, 2))
sketch18.addConstraint(Sketcher.Constraint("Tangent", 3, 1, 4, 1))
sketch18.addConstraint(Sketcher.Constraint("Tangent", 4, 2, 5, 2))
sketch18.addConstraint(Sketcher.Constraint("Tangent", 5, 1, 2, 1))
sketch18.addConstraint(Sketcher.Constraint("Vertical", 2))
sketch18.addConstraint(Sketcher.Constraint("Vertical", 4))
sketch18.addConstraint(Sketcher.Constraint("Equal", 0, 1))
sketch18.addConstraint(Sketcher.Constraint("Equal", 1, 3))
sketch18.addConstraint(Sketcher.Constraint("Vertical", 0, 3, 1, 3))
sketch18.addConstraint(Sketcher.Constraint("Vertical", 1, 3, 3, 3))
sketch18.addConstraint(Sketcher.Constraint("Diameter", 0, Q("4 mm")))
sketch18.addConstraint(Sketcher.Constraint("DistanceY", 2, 2, 2, 1, Q("7 mm")))
sketch18.addConstraint(Sketcher.Constraint("DistanceX", -1, 1, 0, 3, Q("40 mm")))
sketch18.addConstraint(Sketcher.Constraint("DistanceY", 0, 3, 1, 3, Q("17 mm")))
sketch18.addConstraint(Sketcher.Constraint("DistanceY", 0, 3, 3, 3, Q("5 mm")))
sketch18.addConstraint(Sketcher.Constraint("DistanceY", -1, 1, 0, 3, Q("16.5 mm")))
pocket9 = body.newObject("PartDesign::Pocket", "Pocket008")
pocket9.Profile = sketch18
pocket9.Length = 3.5
pocket9.Reversed = True

doc.recompute()
